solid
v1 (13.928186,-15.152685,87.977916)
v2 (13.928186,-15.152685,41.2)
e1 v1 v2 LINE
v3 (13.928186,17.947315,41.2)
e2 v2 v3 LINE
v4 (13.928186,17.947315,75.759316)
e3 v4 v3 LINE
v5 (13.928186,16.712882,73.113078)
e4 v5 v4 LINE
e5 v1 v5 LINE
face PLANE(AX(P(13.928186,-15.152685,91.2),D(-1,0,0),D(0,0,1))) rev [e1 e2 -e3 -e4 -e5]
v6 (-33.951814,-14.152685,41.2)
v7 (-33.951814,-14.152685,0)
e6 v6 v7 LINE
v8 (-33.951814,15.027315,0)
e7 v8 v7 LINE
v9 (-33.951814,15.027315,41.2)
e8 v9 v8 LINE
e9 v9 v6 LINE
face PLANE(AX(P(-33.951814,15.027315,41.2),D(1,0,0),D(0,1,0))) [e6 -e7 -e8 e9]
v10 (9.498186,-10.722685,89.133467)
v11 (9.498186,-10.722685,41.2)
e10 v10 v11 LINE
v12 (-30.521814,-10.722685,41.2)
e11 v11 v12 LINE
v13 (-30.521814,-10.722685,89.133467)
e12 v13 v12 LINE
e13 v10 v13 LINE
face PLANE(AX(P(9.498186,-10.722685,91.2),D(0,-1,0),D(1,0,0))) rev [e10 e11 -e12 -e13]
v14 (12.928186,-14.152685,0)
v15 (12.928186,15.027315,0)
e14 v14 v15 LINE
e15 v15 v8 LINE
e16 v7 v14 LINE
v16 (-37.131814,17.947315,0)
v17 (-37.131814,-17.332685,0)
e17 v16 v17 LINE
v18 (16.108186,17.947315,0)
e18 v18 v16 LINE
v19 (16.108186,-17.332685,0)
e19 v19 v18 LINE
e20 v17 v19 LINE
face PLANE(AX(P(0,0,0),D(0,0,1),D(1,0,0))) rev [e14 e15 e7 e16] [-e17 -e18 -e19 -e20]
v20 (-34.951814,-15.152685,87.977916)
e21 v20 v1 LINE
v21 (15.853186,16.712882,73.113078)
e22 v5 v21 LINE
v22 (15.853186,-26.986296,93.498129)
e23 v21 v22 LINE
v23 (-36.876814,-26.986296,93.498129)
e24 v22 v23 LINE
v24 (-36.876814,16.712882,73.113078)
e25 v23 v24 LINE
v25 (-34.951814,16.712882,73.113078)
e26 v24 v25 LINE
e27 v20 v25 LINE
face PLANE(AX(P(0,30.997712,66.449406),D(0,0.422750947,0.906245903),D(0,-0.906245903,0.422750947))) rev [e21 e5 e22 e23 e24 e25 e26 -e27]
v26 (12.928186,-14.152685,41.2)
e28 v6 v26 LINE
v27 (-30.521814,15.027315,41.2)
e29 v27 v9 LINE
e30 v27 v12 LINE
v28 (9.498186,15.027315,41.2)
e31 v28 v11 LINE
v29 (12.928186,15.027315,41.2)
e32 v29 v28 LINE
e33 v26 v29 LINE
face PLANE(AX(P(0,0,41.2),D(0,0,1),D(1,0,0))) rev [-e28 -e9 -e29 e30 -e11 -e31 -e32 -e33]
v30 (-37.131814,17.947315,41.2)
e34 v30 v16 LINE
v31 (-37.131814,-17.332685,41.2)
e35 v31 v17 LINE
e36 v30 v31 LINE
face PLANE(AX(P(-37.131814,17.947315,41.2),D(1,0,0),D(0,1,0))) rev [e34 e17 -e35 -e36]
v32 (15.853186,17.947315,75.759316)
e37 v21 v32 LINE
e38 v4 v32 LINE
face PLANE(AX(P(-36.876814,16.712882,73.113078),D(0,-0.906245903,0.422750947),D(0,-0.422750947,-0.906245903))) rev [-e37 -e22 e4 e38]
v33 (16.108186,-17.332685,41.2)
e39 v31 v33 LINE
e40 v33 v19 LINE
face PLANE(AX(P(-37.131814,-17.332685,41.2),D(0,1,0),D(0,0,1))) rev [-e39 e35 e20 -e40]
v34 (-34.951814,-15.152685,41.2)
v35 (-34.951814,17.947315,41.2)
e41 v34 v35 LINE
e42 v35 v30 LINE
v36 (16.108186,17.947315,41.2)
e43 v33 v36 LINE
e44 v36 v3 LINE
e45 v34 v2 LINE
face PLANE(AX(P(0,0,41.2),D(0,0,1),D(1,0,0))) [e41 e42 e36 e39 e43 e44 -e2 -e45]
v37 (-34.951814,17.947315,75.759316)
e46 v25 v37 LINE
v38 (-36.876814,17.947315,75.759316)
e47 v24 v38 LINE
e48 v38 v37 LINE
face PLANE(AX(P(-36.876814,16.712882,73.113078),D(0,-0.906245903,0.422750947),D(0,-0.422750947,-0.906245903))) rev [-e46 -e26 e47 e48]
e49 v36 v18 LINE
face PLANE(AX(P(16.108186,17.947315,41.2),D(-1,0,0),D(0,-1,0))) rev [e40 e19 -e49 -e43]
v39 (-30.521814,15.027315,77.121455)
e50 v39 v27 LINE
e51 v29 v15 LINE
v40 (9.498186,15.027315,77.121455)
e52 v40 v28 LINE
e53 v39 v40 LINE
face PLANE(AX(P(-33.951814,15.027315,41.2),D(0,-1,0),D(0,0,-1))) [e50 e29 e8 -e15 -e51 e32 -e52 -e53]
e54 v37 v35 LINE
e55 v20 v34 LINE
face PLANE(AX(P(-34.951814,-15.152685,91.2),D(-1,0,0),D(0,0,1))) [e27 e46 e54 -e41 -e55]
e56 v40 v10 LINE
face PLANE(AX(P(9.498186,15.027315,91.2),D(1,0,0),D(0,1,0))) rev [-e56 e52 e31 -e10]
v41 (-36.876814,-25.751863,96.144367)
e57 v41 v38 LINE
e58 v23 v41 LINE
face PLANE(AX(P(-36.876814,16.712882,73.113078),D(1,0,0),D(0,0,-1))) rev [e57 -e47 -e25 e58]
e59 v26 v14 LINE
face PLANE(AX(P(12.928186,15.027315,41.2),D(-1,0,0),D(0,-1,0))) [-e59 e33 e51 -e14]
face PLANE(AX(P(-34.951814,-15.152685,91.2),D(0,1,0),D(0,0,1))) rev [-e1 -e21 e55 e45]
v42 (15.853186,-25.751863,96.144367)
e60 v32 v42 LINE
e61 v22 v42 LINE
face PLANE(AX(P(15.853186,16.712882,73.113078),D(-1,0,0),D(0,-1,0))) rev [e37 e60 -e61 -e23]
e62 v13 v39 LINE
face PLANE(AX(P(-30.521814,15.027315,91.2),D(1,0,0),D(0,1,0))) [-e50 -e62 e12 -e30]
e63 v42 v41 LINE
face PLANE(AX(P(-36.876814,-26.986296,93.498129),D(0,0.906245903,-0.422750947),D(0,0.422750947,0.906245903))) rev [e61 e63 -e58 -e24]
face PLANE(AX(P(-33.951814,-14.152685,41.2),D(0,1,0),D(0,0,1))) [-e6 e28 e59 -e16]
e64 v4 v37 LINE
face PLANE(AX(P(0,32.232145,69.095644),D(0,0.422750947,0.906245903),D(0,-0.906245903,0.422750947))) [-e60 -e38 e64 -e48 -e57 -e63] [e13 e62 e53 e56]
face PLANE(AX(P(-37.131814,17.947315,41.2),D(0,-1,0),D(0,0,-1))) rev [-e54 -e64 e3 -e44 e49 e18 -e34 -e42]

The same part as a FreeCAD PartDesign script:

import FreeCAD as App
import Part
import Sketcher

V = App.Vector
Q = App.Units.Quantity


def add_polygon(sketch, points):
    """Adds a closed chain of lines whose ends are joined by coincident constraints."""
    first, n = sketch.GeometryCount, len(points)
    for a, b in zip(points, points[1:] + points[:1]):
        sketch.addGeometry(Part.LineSegment(App.Vector(*a, 0), App.Vector(*b, 0)), False)
    for i in range(n):
        sketch.addConstraint(Sketcher.Constraint("Coincident", first + i, 2, first + (i + 1) % n, 1))

doc = App.newDocument("Part")
params = doc.addObject("Spreadsheet::Sheet", "Params")
for row, (alias, value) in enumerate([
    ("sketch1_width", "53.24 mm"),
    ("sketch1_width2", "46.88 mm"),
    ("sketch1_height", "35.28 mm"),
    ("sketch1_height2", "29.18 mm"),
    ("pad1_length", "41.2 mm"),
    ("sketch2_height", "33.1 mm"),
    ("sketch2_width", "48.88 mm"),
    ("sketch2_width2", "40.02 mm"),
    ("sketch2_height2", "25.75 mm"),
    ("pad2_length", "50 mm"),
    ("pocket1_length", "24 mm"),
    ("sketch4_width", "52.73 mm"),
    ("sketch4_height", "48.22 mm"),
    ("pad3_length", "2.92 mm"),
    ("sketch5_width", "40.02 mm"),
    ("sketch5_height", "25.75 mm"),
    ("pocket2_length", "81.92 mm"),
], start=1):
    params.set(f"A{row}", alias)
    params.set(f"B{row}", "=" + value)
    params.setAlias(f"B{row}", alias)

body = doc.addObject("PartDesign::Body", "Body")

sketch1 = body.newObject("Sketcher::SketchObject", "Sketch")
sketch1.AttachmentSupport = (doc.getObject("XY_Plane"), [""])
sketch1.MapMode = "FlatFace"
add_polygon(sketch1, [(-37, 18), (-37, -17), (16, -17), (16, 18)])
add_polygon(sketch1, [(13, -14), (-34, -14), (-34, 15), (13, 15)])
sketch1.addConstraint(Sketcher.Constraint("Vertical", 0))
sketch1.addConstraint(Sketcher.Constraint("Horizontal", 1))
sketch1.addConstraint(Sketcher.Constraint("Vertical", 2))
sketch1.addConstraint(Sketcher.Constraint("Horizontal", 3))
sketch1.addConstraint(Sketcher.Constraint("Horizontal", 4))
sketch1.addConstraint(Sketcher.Constraint("Vertical", 5))
sketch1.addConstraint(Sketcher.Constraint("Horizontal", 6))
sketch1.addConstraint(Sketcher.Constraint("Vertical", 7))
sketch1.addConstraint(Sketcher.Constraint("DistanceX", 1, 1, 1, 2, Q("53.24 mm")))
sketch1.addConstraint(Sketcher.Constraint("DistanceX", 4, 2, 4, 1, Q("46.88 mm")))
sketch1.addConstraint(Sketcher.Constraint("DistanceY", 0, 2, 0, 1, Q("35.28 mm")))
sketch1.addConstraint(Sketcher.Constraint("DistanceY", 5, 1, 5, 2, Q("29.18 mm")))
sketch1.addConstraint(Sketcher.Constraint("DistanceY", 4, 2, 3, 2, Q("32.1 mm")))
sketch1.addConstraint(Sketcher.Constraint("DistanceX", 0, 2, 4, 2, Q("3.18 mm")))
sketch1.addConstraint(Sketcher.Constraint("DistanceX", 0, 2, -1, 1, Q("37.131814 mm")))
sketch1.addConstraint(Sketcher.Constraint("DistanceY", 0, 2, -1, 1, Q("17.332685 mm")))
sketch1.setExpression("Constraints[16]", "Params.sketch1_width")
sketch1.setExpression("Constraints[17]", "Params.sketch1_width2")
sketch1.setExpression("Constraints[18]", "Params.sketch1_height")
sketch1.setExpression("Constraints[19]", "Params.sketch1_height2")
pad1 = body.newObject("PartDesign::Pad", "Pad")
pad1.Profile = sketch1
pad1.setExpression("Length", "Params.pad1_length")

sketch2 = body.newObject("Sketcher::SketchObject", "Sketch001")
sketch2.AttachmentSupport = (doc.getObject("XY_Plane"), [""])
sketch2.MapMode = "FlatFace"
sketch2.AttachmentOffset = App.Placement(V(0, 0, 41.2), App.Rotation())
add_polygon(sketch2, [(-35, 18), (-35, -15), (14, -15), (14, 18)])
add_polygon(sketch2, [(9, -11), (-31, -11), (-31, 15), (9, 15)])
sketch2.addConstraint(Sketcher.Constraint("Vertical", 0))
sketch2.addConstraint(Sketcher.Constraint("Horizontal", 1))
sketch2.addConstraint(Sketcher.Constraint("Vertical", 2))
sketch2.addConstraint(Sketcher.Constraint("Horizontal", 3))
sketch2.addConstraint(Sketcher.Constraint("Horizontal", 4))
sketch2.addConstraint(Sketcher.Constraint("Vertical", 5))
sketch2.addConstraint(Sketcher.Constraint("Horizontal", 6))
sketch2.addConstraint(Sketcher.Constraint("Vertical", 7))
sketch2.addConstraint(Sketcher.Constraint("DistanceY", 0, 2, 0, 1, Q("33.1 mm")))
sketch2.addConstraint(Sketcher.Constraint("DistanceX", 1, 1, 1, 2, Q("48.88 mm")))
sketch2.addConstraint(Sketcher.Constraint("DistanceX", 4, 2, 4, 1, Q("40.02 mm")))
sketch2.addConstraint(Sketcher.Constraint("DistanceY", 5, 1, 5, 2, Q("25.75 mm")))
sketch2.addConstraint(Sketcher.Constraint("DistanceX", 0, 2, 4, 2, Q("4.43 mm")))
sketch2.addConstraint(Sketcher.Constraint("DistanceY", 0, 2, 4, 2, Q("4.43 mm")))
sketch2.addConstraint(Sketcher.Constraint("DistanceX", 0, 2, -1, 1, Q("34.951814 mm")))
sketch2.addConstraint(Sketcher.Constraint("DistanceY", 0, 2, -1, 1, Q("15.152685 mm")))
sketch2.setExpression("Constraints[16]", "Params.sketch2_height")
sketch2.setExpression("Constraints[17]", "Params.sketch2_width")
sketch2.setExpression("Constraints[18]", "Params.sketch2_width2")
sketch2.setExpression("Constraints[19]", "Params.sketch2_height2")
pad2 = body.newObject("PartDesign::Pad", "Pad001")
pad2.Profile = sketch2
pad2.setExpression("Length", "Params.pad2_length")

sketch3 = body.newObject("Sketcher::SketchObject", "Sketch002")
sketch3.Placement = App.Placement(V(0, 32.232145, 69.095644), App.Rotation(V(-1, 0, 0), V(0, 0.906245903, -0.422750947), V(0, -0.422750947, -0.906245903), "ZXY"))
add_polygon(sketch3, [(-15, -15), (-15, -53), (36, -53), (36, -15)])
sketch3.addConstraint(Sketcher.Constraint("Vertical", 0))
sketch3.addConstraint(Sketcher.Constraint("Horizontal", 1))
sketch3.addConstraint(Sketcher.Constraint("Vertical", 2))
sketch3.addConstraint(Sketcher.Constraint("Horizontal", 3))
sketch3.addConstraint(Sketcher.Constraint("DistanceX", 1, 1, 1, 2, Q("51.220457 mm")))
sketch3.addConstraint(Sketcher.Constraint("DistanceY", 0, 2, 0, 1, Q("38.403596 mm")))
sketch3.addConstraint(Sketcher.Constraint("DistanceX", 0, 2, -1, 1, Q("14.787991 mm")))
sketch3.addConstraint(Sketcher.Constraint("DistanceY", 0, 2, -1, 1, Q("53.248632 mm")))
pocket1 = body.newObject("PartDesign::Pocket", "Pocket")
pocket1.Profile = sketch3
pocket1.setExpression("Length", "Params.pocket1_length")

sketch4 = body.newObject("Sketcher::SketchObject", "Sketch003")
sketch4.Placement = App.Placement(V(0, 32.232145, 69.095644), App.Rotation(V(-1, 0, 0), V(0, 0.906245903, -0.422750947), V(0, -0.422750947, -0.906245903), "ZXY"))
add_polygon(sketch4, [(-16, -16), (-16, -64), (37, -64), (37, -16)])
sketch4.addConstraint(Sketcher.Constraint("Vertical", 0))
sketch4.addConstraint(Sketcher.Constraint("Horizontal", 1))
sketch4.addConstraint(Sketcher.Constraint("Vertical", 2))
sketch4.addConstraint(Sketcher.Constraint("Horizontal", 3))
sketch4.addConstraint(Sketcher.Constraint("DistanceX", 1, 1, 1, 2, Q("52.73 mm")))
sketch4.addConstraint(Sketcher.Constraint("DistanceY", 0, 2, 0, 1, Q("48.22 mm")))
sketch4.addConstraint(Sketcher.Constraint("DistanceX", 0, 2, -1, 1, Q("15.853186 mm")))
sketch4.addConstraint(Sketcher.Constraint("DistanceY", 0, 2, -1, 1, Q("63.982642 mm")))
sketch4.setExpression("Constraints[8]", "Params.sketch4_width")
sketch4.setExpression("Constraints[9]", "Params.sketch4_height")
pad3 = body.newObject("PartDesign::Pad", "Pad002")
pad3.Profile = sketch4
pad3.setExpression("Length", "Params.pad3_length")

sketch5 = body.newObject("Sketcher::SketchObject", "Sketch004")
sketch5.AttachmentSupport = (doc.getObject("XY_Plane"), [""])
sketch5.MapMode = "FlatFace"
sketch5.AttachmentOffset = App.Placement(V(0, 0, 41.2), App.Rotation())
add_polygon(sketch5, [(-31, 15), (-31, -11), (9, -11), (9, 15)])
sketch5.addConstraint(Sketcher.Constraint("Vertical", 0))
sketch5.addConstraint(Sketcher.Constraint("Horizontal", 1))
sketch5.addConstraint(Sketcher.Constraint("Vertical", 2))
sketch5.addConstraint(Sketcher.Constraint("Horizontal", 3))
sketch5.addConstraint(Sketcher.Constraint("DistanceX", 1, 1, 1, 2, Q("40.02 mm")))
sketch5.addConstraint(Sketcher.Constraint("DistanceY", 0, 2, 0, 1, Q("25.75 mm")))
sketch5.addConstraint(Sketcher.Constraint("DistanceX", 0, 2, -1, 1, Q("30.521814 mm")))
sketch5.addConstraint(Sketcher.Constraint("DistanceY", 0, 2, -1, 1, Q("10.722685 mm")))
sketch5.setExpression("Constraints[8]", "Params.sketch5_width")
sketch5.setExpression("Constraints[9]", "Params.sketch5_height")
pocket2 = body.newObject("PartDesign::Pocket", "Pocket001")
pocket2.Profile = sketch5
pocket2.setExpression("Length", "Params.pocket2_length")
pocket2.Reversed = True

doc.recompute()
